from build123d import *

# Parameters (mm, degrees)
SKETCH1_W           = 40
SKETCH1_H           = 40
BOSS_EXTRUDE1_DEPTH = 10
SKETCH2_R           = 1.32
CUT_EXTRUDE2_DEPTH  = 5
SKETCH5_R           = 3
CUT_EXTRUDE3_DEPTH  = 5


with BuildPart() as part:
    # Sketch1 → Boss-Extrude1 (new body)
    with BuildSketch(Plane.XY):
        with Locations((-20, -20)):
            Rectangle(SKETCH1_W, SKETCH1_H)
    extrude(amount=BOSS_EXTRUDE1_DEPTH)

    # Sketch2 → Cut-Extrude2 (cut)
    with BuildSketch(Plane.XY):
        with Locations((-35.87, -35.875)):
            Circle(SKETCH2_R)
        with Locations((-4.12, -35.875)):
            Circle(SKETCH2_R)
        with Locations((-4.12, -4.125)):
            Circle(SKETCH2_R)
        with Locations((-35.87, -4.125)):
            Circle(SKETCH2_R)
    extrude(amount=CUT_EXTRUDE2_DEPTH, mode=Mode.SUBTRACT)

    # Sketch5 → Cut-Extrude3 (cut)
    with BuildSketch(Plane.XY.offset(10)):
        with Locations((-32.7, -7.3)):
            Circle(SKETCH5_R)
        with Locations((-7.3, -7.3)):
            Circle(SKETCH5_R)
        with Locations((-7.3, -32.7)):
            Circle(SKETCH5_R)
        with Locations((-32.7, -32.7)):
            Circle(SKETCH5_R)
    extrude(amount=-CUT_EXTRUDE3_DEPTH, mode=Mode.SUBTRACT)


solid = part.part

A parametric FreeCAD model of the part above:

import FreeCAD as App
import Part
import Sketcher


def add_polygon(sketch, points):
    """Adds a closed chain of lines whose ends are joined by coincident constraints."""
    first, n = sketch.GeometryCount, len(points)
    for a, b in zip(points, points[1:] + points[:1]):
        sketch.addGeometry(Part.LineSegment(App.Vector(*a, 0), App.Vector(*b, 0)), False)
    for i in range(n):
        sketch.addConstraint(Sketcher.Constraint("Coincident", first + i, 2, first + (i + 1) % n, 1))

doc = App.newDocument("Part")
body = doc.addObject("PartDesign::Body", "Body")

# Sketch on XY plane
sketch1 = body.newObject("Sketcher::SketchObject", "Sketch")
sketch1.AttachmentSupport = (doc.getObject("XY_Plane"), [""])
sketch1.MapMode = "FlatFace"
add_polygon(sketch1, [(-40, 0), (-40, -40), (0, -40), (0, 0)])  # lines 0-3
sketch1.addConstraint([
    Sketcher.Constraint("Vertical", 0),
    Sketcher.Constraint("Horizontal", 1),
    Sketcher.Constraint("Vertical", 2),
    Sketcher.Constraint("Horizontal", 3),
    Sketcher.Constraint("Coincident", 2, 2, -1, 1),
    Sketcher.Constraint("Equal", 3, 0),
    Sketcher.Constraint("DistanceX", 1, 1, 1, 2, 40.0),
])
pad1 = body.newObject("PartDesign::Pad", "Pad")
pad1.Profile = sketch1
pad1.Length = 10

# Sketch on XY plane
sketch2 = body.newObject("Sketcher::SketchObject", "Sketch001")
sketch2.AttachmentSupport = (doc.getObject("XY_Plane"), [""])
sketch2.MapMode = "FlatFace"
sketch2.addGeometry([
    Part.Circle(App.Vector(-35.9, -35.9, 0), App.Vector(0, 0, 1), 1.3),
    Part.Circle(App.Vector(-4.1, -35.9, 0), App.Vector(0, 0, 1), 1.3),
    Part.Circle(App.Vector(-4.1, -4.1, 0), App.Vector(0, 0, 1), 1.3),
    Part.Circle(App.Vector(-35.9, -4.1, 0), App.Vector(0, 0, 1), 1.3),
], False)
sketch2.addConstraint([
    Sketcher.Constraint("Equal", 0, 1),
    Sketcher.Constraint("Equal", 1, 2),
    Sketcher.Constraint("Equal", 2, 3),
    Sketcher.Constraint("Horizontal", 0, 3, 1, 3),
    Sketcher.Constraint("Horizontal", 2, 3, 3, 3),
    Sketcher.Constraint("Vertical", 1, 3, 2, 3),
    Sketcher.Constraint("Vertical", 0, 3, 3, 3),
    Sketcher.Constraint("Diameter", 0, 2.64),
    Sketcher.Constraint("DistanceX", 0, 3, -1, 1, 35.87),
    Sketcher.Constraint("DistanceX", 1, 3, -1, 1, 4.12),
    Sketcher.Constraint("DistanceY", 1, 3, 2, 3, 31.75),
    Sketcher.Constraint("DistanceY", 0, 3, -1, 1, 35.875),
])
pocket1 = body.newObject("PartDesign::Pocket", "Pocket")
pocket1.Profile = sketch2
pocket1.Length = 5
pocket1.Reversed = True

# Sketch on XY plane
sketch3 = body.newObject("Sketcher::SketchObject", "Sketch002")
sketch3.AttachmentSupport = (doc.getObject("XY_Plane"), [""])
sketch3.MapMode = "FlatFace"
sketch3.AttachmentOffset = App.Placement(App.Vector(0, 0, 10), App.Rotation())
sketch3.addGeometry([
    Part.Circle(App.Vector(-32.7, -7.3, 0), App.Vector(0, 0, 1), 3),
    Part.Circle(App.Vector(-7.3, -7.3, 0), App.Vector(0, 0, 1), 3),
    Part.Circle(App.Vector(-7.3, -32.7, 0), App.Vector(0, 0, 1), 3),
    Part.Circle(App.Vector(-32.7, -32.7, 0), App.Vector(0, 0, 1), 3),
], False)
sketch3.addConstraint([
    Sketcher.Constraint("Equal", 0, 1),
    Sketcher.Constraint("Equal", 1, 2),
    Sketcher.Constraint("Equal", 2, 3),
    Sketcher.Constraint("Horizontal", 0, 3, 1, 3),
    Sketcher.Constraint("Horizontal", 2, 3, 3, 3),
    Sketcher.Constraint("Vertical", 1, 3, 2, 3),
    Sketcher.Constraint("Vertical", 0, 3, 3, 3),
    Sketcher.Constraint("Diameter", 0, 6.0),
    Sketcher.Constraint("DistanceX", 0, 3, -1, 1, 32.7),
    Sketcher.Constraint("DistanceY", 0, 3, -1, 1, 7.3),
    Sketcher.Constraint("DistanceX", 1, 3, -1, 1, 7.3),
    Sketcher.Constraint("DistanceY", 2, 3, -1, 1, 32.7),
])
pocket2 = body.newObject("PartDesign::Pocket", "Pocket001")
pocket2.Profile = sketch3
pocket2.Length = 5

doc.recompute()
